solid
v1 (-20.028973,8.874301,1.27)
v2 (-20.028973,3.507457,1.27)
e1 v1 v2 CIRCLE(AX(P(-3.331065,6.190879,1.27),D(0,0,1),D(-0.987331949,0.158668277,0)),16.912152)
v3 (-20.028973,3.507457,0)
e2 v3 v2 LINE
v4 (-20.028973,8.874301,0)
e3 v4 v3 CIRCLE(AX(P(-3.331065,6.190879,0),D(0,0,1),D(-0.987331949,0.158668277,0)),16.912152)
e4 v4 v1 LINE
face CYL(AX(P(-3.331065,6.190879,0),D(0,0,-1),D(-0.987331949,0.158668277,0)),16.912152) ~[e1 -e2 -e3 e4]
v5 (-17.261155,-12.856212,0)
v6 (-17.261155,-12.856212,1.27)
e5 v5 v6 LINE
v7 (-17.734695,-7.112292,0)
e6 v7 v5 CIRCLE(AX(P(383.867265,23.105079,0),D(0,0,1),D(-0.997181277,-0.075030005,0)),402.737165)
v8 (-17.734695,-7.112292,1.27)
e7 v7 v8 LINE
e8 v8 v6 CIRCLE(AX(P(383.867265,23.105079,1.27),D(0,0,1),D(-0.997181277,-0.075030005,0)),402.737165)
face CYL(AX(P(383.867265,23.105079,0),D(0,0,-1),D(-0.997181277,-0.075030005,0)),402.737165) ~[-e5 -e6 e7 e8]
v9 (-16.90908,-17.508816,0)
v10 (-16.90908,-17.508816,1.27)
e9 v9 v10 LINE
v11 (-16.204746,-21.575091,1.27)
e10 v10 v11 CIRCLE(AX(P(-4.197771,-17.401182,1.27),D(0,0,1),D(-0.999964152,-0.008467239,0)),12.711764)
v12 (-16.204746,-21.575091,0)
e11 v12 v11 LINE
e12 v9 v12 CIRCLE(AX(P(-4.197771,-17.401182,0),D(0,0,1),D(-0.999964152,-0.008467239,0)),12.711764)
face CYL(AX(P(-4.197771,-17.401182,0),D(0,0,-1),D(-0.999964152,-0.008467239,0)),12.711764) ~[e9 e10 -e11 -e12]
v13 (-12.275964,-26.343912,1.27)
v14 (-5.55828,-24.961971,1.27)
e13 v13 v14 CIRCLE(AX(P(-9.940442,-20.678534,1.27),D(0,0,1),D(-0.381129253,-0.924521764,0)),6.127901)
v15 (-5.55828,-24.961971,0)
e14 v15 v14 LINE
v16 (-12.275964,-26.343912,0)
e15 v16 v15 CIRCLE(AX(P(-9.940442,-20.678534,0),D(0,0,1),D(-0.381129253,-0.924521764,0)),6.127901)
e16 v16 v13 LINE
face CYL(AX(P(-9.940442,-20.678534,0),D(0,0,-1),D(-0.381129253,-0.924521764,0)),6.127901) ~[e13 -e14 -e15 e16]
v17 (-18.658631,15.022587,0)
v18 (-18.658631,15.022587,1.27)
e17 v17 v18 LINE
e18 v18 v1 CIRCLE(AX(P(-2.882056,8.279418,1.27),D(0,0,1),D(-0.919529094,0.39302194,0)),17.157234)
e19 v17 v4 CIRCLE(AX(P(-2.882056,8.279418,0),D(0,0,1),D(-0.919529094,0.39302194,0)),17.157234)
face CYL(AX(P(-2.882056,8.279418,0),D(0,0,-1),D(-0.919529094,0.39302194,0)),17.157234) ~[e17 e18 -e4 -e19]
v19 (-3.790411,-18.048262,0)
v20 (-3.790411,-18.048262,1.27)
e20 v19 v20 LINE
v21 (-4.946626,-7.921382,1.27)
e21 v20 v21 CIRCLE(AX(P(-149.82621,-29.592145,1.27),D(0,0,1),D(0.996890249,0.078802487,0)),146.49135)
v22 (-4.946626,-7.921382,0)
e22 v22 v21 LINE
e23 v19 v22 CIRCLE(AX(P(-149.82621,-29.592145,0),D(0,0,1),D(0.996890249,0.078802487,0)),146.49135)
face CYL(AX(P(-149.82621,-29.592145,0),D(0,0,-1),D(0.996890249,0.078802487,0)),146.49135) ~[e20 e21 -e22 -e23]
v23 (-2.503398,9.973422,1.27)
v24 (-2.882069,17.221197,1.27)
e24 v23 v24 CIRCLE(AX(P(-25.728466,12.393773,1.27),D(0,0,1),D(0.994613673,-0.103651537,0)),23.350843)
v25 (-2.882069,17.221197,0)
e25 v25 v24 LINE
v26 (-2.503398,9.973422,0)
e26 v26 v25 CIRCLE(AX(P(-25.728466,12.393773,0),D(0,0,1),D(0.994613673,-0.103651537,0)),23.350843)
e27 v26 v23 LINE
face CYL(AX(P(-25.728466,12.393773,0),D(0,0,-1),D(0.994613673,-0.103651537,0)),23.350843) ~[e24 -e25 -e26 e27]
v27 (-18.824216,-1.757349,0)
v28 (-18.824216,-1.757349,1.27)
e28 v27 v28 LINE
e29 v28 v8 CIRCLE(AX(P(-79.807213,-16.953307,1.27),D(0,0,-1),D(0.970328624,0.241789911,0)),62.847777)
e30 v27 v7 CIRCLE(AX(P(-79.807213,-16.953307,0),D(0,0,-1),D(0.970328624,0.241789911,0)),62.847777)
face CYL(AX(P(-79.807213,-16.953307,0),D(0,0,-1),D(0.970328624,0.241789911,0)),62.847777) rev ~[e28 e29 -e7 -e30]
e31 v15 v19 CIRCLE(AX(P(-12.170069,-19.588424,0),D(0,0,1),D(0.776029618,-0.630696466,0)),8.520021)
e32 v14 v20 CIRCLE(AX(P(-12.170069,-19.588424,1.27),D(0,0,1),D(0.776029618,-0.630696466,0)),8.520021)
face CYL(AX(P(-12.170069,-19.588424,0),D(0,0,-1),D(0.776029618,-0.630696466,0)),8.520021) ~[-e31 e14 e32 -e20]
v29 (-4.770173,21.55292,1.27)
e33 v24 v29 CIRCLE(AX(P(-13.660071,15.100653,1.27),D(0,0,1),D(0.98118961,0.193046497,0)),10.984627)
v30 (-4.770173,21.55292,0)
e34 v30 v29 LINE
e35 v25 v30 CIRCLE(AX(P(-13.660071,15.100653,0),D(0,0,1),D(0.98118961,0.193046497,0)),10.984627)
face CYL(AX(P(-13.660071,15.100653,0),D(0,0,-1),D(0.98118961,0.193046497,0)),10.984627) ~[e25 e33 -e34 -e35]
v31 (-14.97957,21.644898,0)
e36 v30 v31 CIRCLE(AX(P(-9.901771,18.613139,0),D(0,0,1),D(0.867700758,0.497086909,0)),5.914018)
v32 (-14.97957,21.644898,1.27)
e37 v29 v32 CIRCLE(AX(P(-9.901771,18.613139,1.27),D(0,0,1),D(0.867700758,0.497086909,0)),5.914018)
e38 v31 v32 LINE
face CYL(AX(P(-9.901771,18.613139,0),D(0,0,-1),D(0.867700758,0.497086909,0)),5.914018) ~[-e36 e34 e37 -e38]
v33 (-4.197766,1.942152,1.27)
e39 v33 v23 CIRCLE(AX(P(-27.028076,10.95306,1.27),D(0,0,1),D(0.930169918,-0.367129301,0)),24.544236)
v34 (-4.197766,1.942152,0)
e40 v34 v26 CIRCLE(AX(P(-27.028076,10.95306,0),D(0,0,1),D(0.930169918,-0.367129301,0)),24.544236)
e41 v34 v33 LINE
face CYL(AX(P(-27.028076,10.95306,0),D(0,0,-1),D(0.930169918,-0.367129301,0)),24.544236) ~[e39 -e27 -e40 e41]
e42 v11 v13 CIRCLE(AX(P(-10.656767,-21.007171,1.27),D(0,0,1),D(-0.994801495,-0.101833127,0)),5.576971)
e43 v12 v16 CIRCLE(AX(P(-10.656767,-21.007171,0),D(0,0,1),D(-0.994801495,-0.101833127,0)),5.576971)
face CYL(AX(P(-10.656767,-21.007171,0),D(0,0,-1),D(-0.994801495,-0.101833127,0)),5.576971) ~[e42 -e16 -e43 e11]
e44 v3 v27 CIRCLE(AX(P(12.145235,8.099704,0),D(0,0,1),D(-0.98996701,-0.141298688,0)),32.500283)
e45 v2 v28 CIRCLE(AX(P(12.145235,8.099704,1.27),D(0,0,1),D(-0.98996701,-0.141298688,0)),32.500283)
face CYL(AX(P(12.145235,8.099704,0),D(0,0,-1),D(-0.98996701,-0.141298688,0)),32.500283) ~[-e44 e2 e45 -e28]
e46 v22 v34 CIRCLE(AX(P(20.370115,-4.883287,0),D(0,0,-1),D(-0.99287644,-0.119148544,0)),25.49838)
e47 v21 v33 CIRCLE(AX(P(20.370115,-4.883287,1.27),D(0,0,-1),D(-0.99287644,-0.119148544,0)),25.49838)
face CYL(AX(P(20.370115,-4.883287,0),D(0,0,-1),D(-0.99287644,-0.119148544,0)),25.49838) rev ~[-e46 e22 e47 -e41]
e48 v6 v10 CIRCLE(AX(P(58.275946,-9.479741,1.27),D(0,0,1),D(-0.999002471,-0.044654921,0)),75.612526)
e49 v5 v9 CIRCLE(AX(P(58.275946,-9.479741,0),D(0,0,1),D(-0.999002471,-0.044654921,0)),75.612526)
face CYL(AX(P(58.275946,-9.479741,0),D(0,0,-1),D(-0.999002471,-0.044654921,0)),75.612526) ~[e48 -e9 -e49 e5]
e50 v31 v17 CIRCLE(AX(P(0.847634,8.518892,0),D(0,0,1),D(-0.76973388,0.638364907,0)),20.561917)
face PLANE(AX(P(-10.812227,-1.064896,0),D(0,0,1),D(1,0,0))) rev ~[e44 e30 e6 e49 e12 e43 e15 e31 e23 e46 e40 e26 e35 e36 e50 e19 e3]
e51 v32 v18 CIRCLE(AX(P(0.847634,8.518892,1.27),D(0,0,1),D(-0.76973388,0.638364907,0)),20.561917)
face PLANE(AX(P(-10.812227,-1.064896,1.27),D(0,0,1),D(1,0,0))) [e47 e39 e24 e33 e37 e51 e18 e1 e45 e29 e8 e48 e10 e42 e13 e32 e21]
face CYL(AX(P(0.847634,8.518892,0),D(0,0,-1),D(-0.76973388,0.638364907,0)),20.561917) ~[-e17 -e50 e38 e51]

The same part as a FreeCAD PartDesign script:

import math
import FreeCAD as App
import Part
import Sketcher

V = App.Vector
Q = App.Units.Quantity

doc = App.newDocument("Part")
params = doc.addObject("Spreadsheet::Sheet", "Params")
for row, (alias, value) in enumerate([
    ("pad1_length", "0.05 in"),
], start=1):
    params.set(f"A{row}", alias)
    params.set(f"B{row}", "=" + value)
    params.setAlias(f"B{row}", alias)

body = doc.addObject("PartDesign::Body", "Body")

# Sketch on XY plane
sketch1 = body.newObject("Sketcher::SketchObject", "Sketch")
sketch1.AttachmentSupport = (doc.getObject("XY_Plane"), [""])
sketch1.MapMode = "FlatFace"
sketch1.addGeometry([
    Part.ArcOfCircle(Part.Circle(V(-13.660071, 15.100653, 0), V(0, 0, 1), 10.984627), math.radians(11.130628), math.radians(35.972055)),  # 0
    Part.ArcOfCircle(Part.Circle(V(-9.901771, 18.613139, 0), V(0, 0, 1), 5.914018), math.radians(29.807458), math.radians(149.160197)),  # 1
    Part.ArcOfCircle(Part.Circle(V(0.847634, 8.518892, 0), V(0, 0, 1), 20.561917), math.radians(140.329997), math.radians(161.560803)),  # 2
    Part.ArcOfCircle(Part.Circle(V(-2.882056, 8.279418, 0), V(0, 0, 1), 17.157234), math.radians(156.857336), math.radians(178.013017)),  # 3
    Part.ArcOfCircle(Part.Circle(V(-3.331065, 6.190879, 0), V(0, 0, 1), 16.912152), math.radians(170.870393), math.radians(189.129607)),  # 4
    Part.ArcOfCircle(Part.Circle(V(12.145235, 8.099704, 0), V(0, 0, 1), 32.500283), math.radians(-171.876997), math.radians(-162.344606)),  # 5
    Part.ArcOfCircle(Part.Circle(V(-79.807213, -16.953307, 0), V(0, 0, 1), 62.847777), math.radians(9.008729), math.radians(13.992206)),  # 6
    Part.ArcOfCircle(Part.Circle(V(383.867265, 23.105079, 0), V(0, 0, 1), 402.737165), math.radians(-175.697054), math.radians(-174.87711)),  # 7
    Part.ArcOfCircle(Part.Circle(V(58.275946, -9.479741, 0), V(0, 0, 1), 75.612526), math.radians(-177.44061), math.radians(-173.904435)),  # 8
    Part.ArcOfCircle(Part.Circle(V(-4.197771, -17.401182, 0), V(0, 0, 1), 12.711764), math.radians(-179.514857), math.radians(-160.831339)),  # 9
    Part.ArcOfCircle(Part.Circle(V(-10.656767, -21.007171, 0), V(0, 0, 1), 5.576971), math.radians(-174.15526), math.radians(-106.878093)),  # 10
    Part.ArcOfCircle(Part.Circle(V(-9.940442, -20.678534, 0), V(0, 0, 1), 6.127901), math.radians(-112.403649), math.radians(-44.347275)),  # 11
    Part.ArcOfCircle(Part.Circle(V(-12.170069, -19.588424, 0), V(0, 0, 1), 8.520021), math.radians(-39.101525), math.radians(10.414595)),  # 12
    Part.ArcOfCircle(Part.Circle(V(-149.82621, -29.592145, 0), V(0, 0, 1), 146.49135), math.radians(4.519736), math.radians(8.507104)),  # 13
    Part.ArcOfCircle(Part.Circle(V(20.370115, -4.883287, 0), V(0, 0, 1), 25.49838), math.radians(164.473664), math.radians(186.842965)),  # 14
    Part.ArcOfCircle(Part.Circle(V(-27.028076, 10.95306, 0), V(0, 0, 1), 24.544236), math.radians(-21.538682), math.radians(-2.287464)),  # 15
    Part.ArcOfCircle(Part.Circle(V(-25.728466, 12.393773, 0), V(0, 0, 1), 23.350843), math.radians(-5.949481), math.radians(11.931053)),  # 16
], False)
sketch1.addConstraint([
    Sketcher.Constraint("Coincident", 0, 2, 1, 1),
    Sketcher.Constraint("Coincident", 1, 2, 2, 1),
    Sketcher.Constraint("Coincident", 2, 2, 3, 1),
    Sketcher.Constraint("Coincident", 3, 2, 4, 1),
    Sketcher.Constraint("Coincident", 4, 2, 5, 1),
    Sketcher.Constraint("Coincident", 5, 2, 6, 2),
    Sketcher.Constraint("Coincident", 6, 1, 7, 1),
    Sketcher.Constraint("Coincident", 7, 2, 8, 1),
    Sketcher.Constraint("Coincident", 8, 2, 9, 1),
    Sketcher.Constraint("Coincident", 9, 2, 10, 1),
    Sketcher.Constraint("Coincident", 10, 2, 11, 1),
    Sketcher.Constraint("Coincident", 11, 2, 12, 1),
    Sketcher.Constraint("Coincident", 12, 2, 13, 1),
    Sketcher.Constraint("Coincident", 13, 2, 14, 2),
    Sketcher.Constraint("Coincident", 14, 1, 15, 1),
    Sketcher.Constraint("Coincident", 15, 2, 16, 1),
    Sketcher.Constraint("Coincident", 16, 2, 0, 1),
    Sketcher.Constraint("Radius", 11, Q("6.127901 mm")),
    Sketcher.Constraint("DistanceY", -1, 1, 16, 2, Q("0.6779999 in")),
    Sketcher.Constraint("Radius", 4, Q("16.912152 mm")),
    Sketcher.Constraint("Radius", 10, Q("5.576971 mm")),
    Sketcher.Constraint("Radius", 12, Q("8.520021 mm")),
    Sketcher.Constraint("Radius", 13, Q("146.49135 mm")),
    Sketcher.Constraint("Radius", 14, Q("25.49838 mm")),
    Sketcher.Constraint("Radius", 0, Q("10.984627 mm")),
    Sketcher.Constraint("Radius", 1, Q("5.914018 mm")),
    Sketcher.Constraint("Radius", 2, Q("20.561917 mm")),
    Sketcher.Constraint("Radius", 3, Q("17.157234 mm")),
    Sketcher.Constraint("Radius", 5, Q("32.500283 mm")),
    Sketcher.Constraint("Radius", 6, Q("62.847777 mm")),
    Sketcher.Constraint("Radius", 7, Q("402.737165 mm")),
    Sketcher.Constraint("Radius", 8, Q("75.612526 mm")),
    Sketcher.Constraint("Radius", 9, Q("12.711764 mm")),
    Sketcher.Constraint("Radius", 15, Q("24.544236 mm")),
    Sketcher.Constraint("Radius", 16, Q("23.350843 mm")),
    Sketcher.Constraint("DistanceX", 9, 3, 3, 3, Q("0.0517998 in")),
    Sketcher.Constraint("DistanceY", 9, 3, 0, 3, Q("1.2795998 in")),
    Sketcher.Constraint("DistanceY", -1, 1, 1, 2, Q("21.644898 mm")),
    Sketcher.Constraint("DistanceY", -1, 1, 3, 2, Q("8.874301 mm")),
    Sketcher.Constraint("DistanceX", 0, 3, 1, 3, Q("3.7583 mm")),
    Sketcher.Constraint("DistanceX", 4, 3, 2, 3, Q("4.1787 mm")),
    Sketcher.Constraint("DistanceX", 2, 3, 5, 3, Q("11.297601 mm")),
    Sketcher.Constraint("DistanceY", 6, 3, 2, 3, Q("25.472199 mm")),
    Sketcher.Constraint("DistanceY", 4, 3, 7, 3, Q("16.9142 mm")),
    Sketcher.Constraint("DistanceX", 3, 3, 8, 3, Q("61.158001 mm")),
    Sketcher.Constraint("DistanceY", 9, 3, 3, 3, Q("25.6806 mm")),
    Sketcher.Constraint("DistanceX", 0, 3, 9, 3, Q("9.4623 mm")),
    Sketcher.Constraint("DistanceX", 10, 3, 4, 3, Q("7.325701 mm")),
    Sketcher.Constraint("DistanceX", 16, 3, 4, 3, Q("22.3974 mm")),
    Sketcher.Constraint("DistanceX", 0, 3, 0, 2, Q("8.889898 mm")),
    Sketcher.Constraint("DistanceX", 1, 2, 1, 3, Q("5.077799 mm")),
    Sketcher.Constraint("DistanceX", 4, 2, 0, 3, Q("6.368902 mm")),
    Sketcher.Constraint("DistanceY", 11, 2, 10, 3, Q("3.9548 mm")),
    Sketcher.Constraint("DistanceY", 9, 3, 13, 2, Q("9.4798 mm")),
    Sketcher.Constraint("DistanceX", 14, 1, 4, 3, Q("0.866701 mm")),
    Sketcher.Constraint("DistanceY", 5, 2, 14, 1, Q("3.699501 mm")),
    Sketcher.Constraint("DistanceX", 0, 3, -1, 1, Q("13.660071 mm")),
    Sketcher.Constraint("DistanceY", -1, 1, 2, 3, Q("8.518892 mm")),
    Sketcher.Constraint("DistanceY", 8, 3, -1, 1, Q("9.479741 mm")),
    Sketcher.Constraint("DistanceY", 10, 3, -1, 1, Q("21.007171 mm")),
    Sketcher.Constraint("DistanceX", 11, 3, -1, 1, Q("9.940442 mm")),
    Sketcher.Constraint("DistanceX", 12, 3, -1, 1, Q("12.170069 mm")),
    Sketcher.Constraint("DistanceX", 13, 3, -1, 1, Q("149.82621 mm")),
    Sketcher.Constraint("DistanceY", -1, 1, 15, 3, Q("10.95306 mm")),
    Sketcher.Constraint("DistanceY", 5, 2, -1, 1, Q("1.757349 mm")),
    Sketcher.Constraint("DistanceY", 6, 1, -1, 1, Q("7.112292 mm")),
    Sketcher.Constraint("DistanceY", 10, 2, -1, 1, Q("26.343912 mm")),
    Sketcher.Constraint("DistanceX", 12, 2, -1, 1, Q("3.790411 mm")),
])
pad1 = body.newObject("PartDesign::Pad", "Pad")
pad1.Profile = sketch1
pad1.setExpression("Length", "Params.pad1_length")

doc.recompute()
